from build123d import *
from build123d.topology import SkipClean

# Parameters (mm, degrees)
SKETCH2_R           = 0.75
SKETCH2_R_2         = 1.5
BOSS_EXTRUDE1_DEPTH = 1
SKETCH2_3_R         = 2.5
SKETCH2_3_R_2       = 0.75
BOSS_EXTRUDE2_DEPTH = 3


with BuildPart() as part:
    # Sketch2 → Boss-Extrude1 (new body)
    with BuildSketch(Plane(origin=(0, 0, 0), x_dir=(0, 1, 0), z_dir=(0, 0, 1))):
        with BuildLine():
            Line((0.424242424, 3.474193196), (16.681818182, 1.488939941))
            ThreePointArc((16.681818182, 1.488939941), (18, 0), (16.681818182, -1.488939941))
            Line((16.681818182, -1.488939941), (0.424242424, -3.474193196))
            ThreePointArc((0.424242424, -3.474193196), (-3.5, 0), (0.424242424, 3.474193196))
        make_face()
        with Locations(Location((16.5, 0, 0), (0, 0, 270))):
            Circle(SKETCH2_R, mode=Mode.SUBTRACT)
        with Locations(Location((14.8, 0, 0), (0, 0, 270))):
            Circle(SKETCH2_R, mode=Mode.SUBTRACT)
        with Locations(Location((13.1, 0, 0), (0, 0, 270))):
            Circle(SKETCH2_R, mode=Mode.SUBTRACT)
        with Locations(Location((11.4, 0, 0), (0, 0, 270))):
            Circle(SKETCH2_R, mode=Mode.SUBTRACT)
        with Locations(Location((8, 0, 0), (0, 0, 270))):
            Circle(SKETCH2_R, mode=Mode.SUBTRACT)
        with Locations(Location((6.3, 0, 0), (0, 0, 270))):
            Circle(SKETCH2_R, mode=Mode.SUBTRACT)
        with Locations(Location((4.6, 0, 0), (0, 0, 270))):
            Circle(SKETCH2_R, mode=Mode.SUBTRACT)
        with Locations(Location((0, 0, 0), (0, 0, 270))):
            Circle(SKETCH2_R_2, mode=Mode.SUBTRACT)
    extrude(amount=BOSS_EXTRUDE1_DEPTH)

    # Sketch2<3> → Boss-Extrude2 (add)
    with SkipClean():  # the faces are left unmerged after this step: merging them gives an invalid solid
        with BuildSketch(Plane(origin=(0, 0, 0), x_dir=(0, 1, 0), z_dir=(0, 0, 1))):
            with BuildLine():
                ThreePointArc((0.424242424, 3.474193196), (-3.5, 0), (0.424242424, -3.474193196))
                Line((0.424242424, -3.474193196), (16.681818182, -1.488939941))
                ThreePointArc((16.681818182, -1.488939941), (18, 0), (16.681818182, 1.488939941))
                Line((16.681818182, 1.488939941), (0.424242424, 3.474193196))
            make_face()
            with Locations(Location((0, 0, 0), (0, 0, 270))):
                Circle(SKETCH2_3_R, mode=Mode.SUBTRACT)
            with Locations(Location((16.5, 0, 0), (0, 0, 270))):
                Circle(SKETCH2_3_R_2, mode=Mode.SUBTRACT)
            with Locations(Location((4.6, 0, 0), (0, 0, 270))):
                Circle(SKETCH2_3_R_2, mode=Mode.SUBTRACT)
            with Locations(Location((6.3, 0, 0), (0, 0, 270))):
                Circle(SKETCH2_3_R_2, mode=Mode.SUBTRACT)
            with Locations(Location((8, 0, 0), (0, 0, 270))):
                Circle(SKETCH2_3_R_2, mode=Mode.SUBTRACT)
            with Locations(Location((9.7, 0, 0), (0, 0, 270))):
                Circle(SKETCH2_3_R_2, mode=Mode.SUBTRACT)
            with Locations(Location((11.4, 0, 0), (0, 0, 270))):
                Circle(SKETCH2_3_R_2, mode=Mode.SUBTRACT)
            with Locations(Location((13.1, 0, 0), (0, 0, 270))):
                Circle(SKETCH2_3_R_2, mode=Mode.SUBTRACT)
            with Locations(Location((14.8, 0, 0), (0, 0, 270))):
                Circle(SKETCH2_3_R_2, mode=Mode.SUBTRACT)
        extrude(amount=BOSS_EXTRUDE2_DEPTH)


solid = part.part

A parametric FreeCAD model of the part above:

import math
import FreeCAD as App
import Part
import Sketcher

doc = App.newDocument("Part")
body = doc.addObject("PartDesign::Body", "Body")

# Sketch on XY plane
sketch1 = body.newObject("Sketcher::SketchObject", "Sketch")
sketch1.AttachmentSupport = (doc.getObject("XY_Plane"), [""])
sketch1.MapMode = "FlatFace"
sketch1.addGeometry(Part.LineSegment(App.Vector(-1.5, 16.7, 0), App.Vector(-3.5, 0.4, 0)), False)
sketch1.addGeometry(Part.ArcOfCircle(Part.Circle(App.Vector(0, 0, 0), App.Vector(0, 0, 1), 3.5), math.radians(173), math.radians(367)), False)
sketch1.addGeometry(Part.LineSegment(App.Vector(3.5, 0.4, 0), App.Vector(1.5, 16.7, 0)), False)
sketch1.addGeometry(Part.ArcOfCircle(Part.Circle(App.Vector(0, 16.5, 0), App.Vector(0, 0, 1), 1.5), math.radians(7), math.radians(173)), False)
sketch1.addGeometry(Part.Circle(App.Vector(0, 16.5, 0), App.Vector(0, 0, 1), 0.8), False)
sketch1.addGeometry(Part.Circle(App.Vector(0, 14.8, 0), App.Vector(0, 0, 1), 0.8), False)
sketch1.addGeometry(Part.Circle(App.Vector(0, 13.1, 0), App.Vector(0, 0, 1), 0.8), False)
sketch1.addGeometry(Part.Circle(App.Vector(0, 11.4, 0), App.Vector(0, 0, 1), 0.8), False)
sketch1.addGeometry(Part.Circle(App.Vector(0, 8, 0), App.Vector(0, 0, 1), 0.8), False)
sketch1.addGeometry(Part.Circle(App.Vector(0, 6.3, 0), App.Vector(0, 0, 1), 0.8), False)
sketch1.addGeometry(Part.Circle(App.Vector(0, 4.6, 0), App.Vector(0, 0, 1), 0.8), False)
sketch1.addGeometry(Part.Circle(App.Vector(0, 0, 0), App.Vector(0, 0, 1), 1.5), False)
sketch1.addConstraint(Sketcher.Constraint("Tangent", 0, 2, 1, 1))
sketch1.addConstraint(Sketcher.Constraint("Tangent", 1, 2, 2, 1))
sketch1.addConstraint(Sketcher.Constraint("Tangent", 2, 2, 3, 1))
sketch1.addConstraint(Sketcher.Constraint("Tangent", 3, 2, 0, 1))
sketch1.addConstraint(Sketcher.Constraint("Coincident", 1, 3, -1, 1))
sketch1.addConstraint(Sketcher.Constraint("Coincident", 11, 3, -1, 1))
sketch1.addConstraint(Sketcher.Constraint("Coincident", 4, 3, 3, 3))
sketch1.addConstraint(Sketcher.Constraint("Equal", 4, 5))
sketch1.addConstraint(Sketcher.Constraint("Equal", 5, 6))
sketch1.addConstraint(Sketcher.Constraint("Equal", 6, 7))
sketch1.addConstraint(Sketcher.Constraint("Equal", 7, 8))
sketch1.addConstraint(Sketcher.Constraint("Equal", 8, 9))
sketch1.addConstraint(Sketcher.Constraint("Equal", 9, 10))
sketch1.addConstraint(Sketcher.Constraint("Equal", 3, 11))
sketch1.addConstraint(Sketcher.Constraint("PointOnObject", 3, 3, -2))
sketch1.addConstraint(Sketcher.Constraint("PointOnObject", 5, 3, -2))
sketch1.addConstraint(Sketcher.Constraint("PointOnObject", 6, 3, -2))
sketch1.addConstraint(Sketcher.Constraint("PointOnObject", 7, 3, -2))
sketch1.addConstraint(Sketcher.Constraint("PointOnObject", 8, 3, -2))
sketch1.addConstraint(Sketcher.Constraint("PointOnObject", 9, 3, -2))
sketch1.addConstraint(Sketcher.Constraint("PointOnObject", 10, 3, -2))
sketch1.addConstraint(Sketcher.Constraint("Diameter", 11, 3.0))
sketch1.addConstraint(Sketcher.Constraint("Diameter", 4, 1.5))
sketch1.addConstraint(Sketcher.Constraint("Radius", 1, 3.5))
sketch1.addConstraint(Sketcher.Constraint("DistanceY", -1, 1, 8, 3, 8.0))
sketch1.addConstraint(Sketcher.Constraint("DistanceY", -1, 1, 3, 3, 16.5))
sketch1.addConstraint(Sketcher.Constraint("DistanceY", -1, 1, 5, 3, 14.8))
sketch1.addConstraint(Sketcher.Constraint("DistanceY", -1, 1, 6, 3, 13.1))
sketch1.addConstraint(Sketcher.Constraint("DistanceY", -1, 1, 7, 3, 11.4))
sketch1.addConstraint(Sketcher.Constraint("DistanceY", -1, 1, 9, 3, 6.3))
sketch1.addConstraint(Sketcher.Constraint("DistanceY", -1, 1, 10, 3, 4.6))
pad1 = body.newObject("PartDesign::Pad", "Pad")
pad1.Profile = sketch1
pad1.Length = 1

# Sketch on XY plane
sketch2 = body.newObject("Sketcher::SketchObject", "Sketch001")
sketch2.AttachmentSupport = (doc.getObject("XY_Plane"), [""])
sketch2.MapMode = "FlatFace"
sketch2.addGeometry(Part.ArcOfCircle(Part.Circle(App.Vector(0, 0, 0), App.Vector(0, 0, 1), 3.5), math.radians(173), math.radians(367)), False)
sketch2.addGeometry(Part.LineSegment(App.Vector(3.5, 0.4, 0), App.Vector(1.5, 16.7, 0)), False)
sketch2.addGeometry(Part.ArcOfCircle(Part.Circle(App.Vector(0, 16.5, 0), App.Vector(0, 0, 1), 1.5), math.radians(7), math.radians(173)), False)
sketch2.addGeometry(Part.LineSegment(App.Vector(-1.5, 16.7, 0), App.Vector(-3.5, 0.4, 0)), False)
sketch2.addGeometry(Part.Circle(App.Vector(0, 0, 0), App.Vector(0, 0, 1), 2.5), False)
sketch2.addGeometry(Part.Circle(App.Vector(0, 4.6, 0), App.Vector(0, 0, 1), 0.8), False)
sketch2.addGeometry(Part.Circle(App.Vector(0, 6.3, 0), App.Vector(0, 0, 1), 0.8), False)
sketch2.addGeometry(Part.Circle(App.Vector(0, 8, 0), App.Vector(0, 0, 1), 0.8), False)
sketch2.addGeometry(Part.Circle(App.Vector(0, 9.7, 0), App.Vector(0, 0, 1), 0.8), False)
sketch2.addGeometry(Part.Circle(App.Vector(0, 11.4, 0), App.Vector(0, 0, 1), 0.8), False)
sketch2.addGeometry(Part.Circle(App.Vector(0, 13.1, 0), App.Vector(0, 0, 1), 0.8), False)
sketch2.addGeometry(Part.Circle(App.Vector(0, 14.8, 0), App.Vector(0, 0, 1), 0.8), False)
sketch2.addGeometry(Part.Circle(App.Vector(0, 16.5, 0), App.Vector(0, 0, 1), 0.8), False)
sketch2.addConstraint(Sketcher.Constraint("Tangent", 0, 2, 1, 1))
sketch2.addConstraint(Sketcher.Constraint("Tangent", 1, 2, 2, 1))
sketch2.addConstraint(Sketcher.Constraint("Tangent", 2, 2, 3, 1))
sketch2.addConstraint(Sketcher.Constraint("Tangent", 3, 2, 0, 1))
sketch2.addConstraint(Sketcher.Constraint("Coincident", 0, 3, -1, 1))
sketch2.addConstraint(Sketcher.Constraint("Coincident", 4, 3, -1, 1))
sketch2.addConstraint(Sketcher.Constraint("Coincident", 12, 3, 2, 3))
sketch2.addConstraint(Sketcher.Constraint("Equal", 5, 6))
sketch2.addConstraint(Sketcher.Constraint("Equal", 6, 7))
sketch2.addConstraint(Sketcher.Constraint("Equal", 7, 8))
sketch2.addConstraint(Sketcher.Constraint("Equal", 8, 9))
sketch2.addConstraint(Sketcher.Constraint("Equal", 9, 10))
sketch2.addConstraint(Sketcher.Constraint("Equal", 10, 11))
sketch2.addConstraint(Sketcher.Constraint("Equal", 11, 12))
sketch2.addConstraint(Sketcher.Constraint("PointOnObject", 2, 3, -2))
sketch2.addConstraint(Sketcher.Constraint("PointOnObject", 5, 3, -2))
sketch2.addConstraint(Sketcher.Constraint("PointOnObject", 6, 3, -2))
sketch2.addConstraint(Sketcher.Constraint("PointOnObject", 7, 3, -2))
sketch2.addConstraint(Sketcher.Constraint("PointOnObject", 8, 3, -2))
sketch2.addConstraint(Sketcher.Constraint("PointOnObject", 9, 3, -2))
sketch2.addConstraint(Sketcher.Constraint("PointOnObject", 10, 3, -2))
sketch2.addConstraint(Sketcher.Constraint("PointOnObject", 11, 3, -2))
sketch2.addConstraint(Sketcher.Constraint("Diameter", 4, 5.0))
sketch2.addConstraint(Sketcher.Constraint("Diameter", 5, 1.5))
sketch2.addConstraint(Sketcher.Constraint("Radius", 0, 3.5))
sketch2.addConstraint(Sketcher.Constraint("Radius", 2, 1.5))
sketch2.addConstraint(Sketcher.Constraint("DistanceY", -1, 1, 7, 3, 8.0))
sketch2.addConstraint(Sketcher.Constraint("DistanceY", -1, 1, 2, 3, 16.5))
sketch2.addConstraint(Sketcher.Constraint("DistanceY", -1, 1, 5, 3, 4.6))
sketch2.addConstraint(Sketcher.Constraint("DistanceY", -1, 1, 6, 3, 6.3))
sketch2.addConstraint(Sketcher.Constraint("DistanceY", -1, 1, 8, 3, 9.7))
sketch2.addConstraint(Sketcher.Constraint("DistanceY", -1, 1, 9, 3, 11.4))
sketch2.addConstraint(Sketcher.Constraint("DistanceY", -1, 1, 10, 3, 13.1))
sketch2.addConstraint(Sketcher.Constraint("DistanceY", -1, 1, 11, 3, 14.8))
pad2 = body.newObject("PartDesign::Pad", "Pad001")
pad2.Profile = sketch2
pad2.Length = 3

doc.recompute()
